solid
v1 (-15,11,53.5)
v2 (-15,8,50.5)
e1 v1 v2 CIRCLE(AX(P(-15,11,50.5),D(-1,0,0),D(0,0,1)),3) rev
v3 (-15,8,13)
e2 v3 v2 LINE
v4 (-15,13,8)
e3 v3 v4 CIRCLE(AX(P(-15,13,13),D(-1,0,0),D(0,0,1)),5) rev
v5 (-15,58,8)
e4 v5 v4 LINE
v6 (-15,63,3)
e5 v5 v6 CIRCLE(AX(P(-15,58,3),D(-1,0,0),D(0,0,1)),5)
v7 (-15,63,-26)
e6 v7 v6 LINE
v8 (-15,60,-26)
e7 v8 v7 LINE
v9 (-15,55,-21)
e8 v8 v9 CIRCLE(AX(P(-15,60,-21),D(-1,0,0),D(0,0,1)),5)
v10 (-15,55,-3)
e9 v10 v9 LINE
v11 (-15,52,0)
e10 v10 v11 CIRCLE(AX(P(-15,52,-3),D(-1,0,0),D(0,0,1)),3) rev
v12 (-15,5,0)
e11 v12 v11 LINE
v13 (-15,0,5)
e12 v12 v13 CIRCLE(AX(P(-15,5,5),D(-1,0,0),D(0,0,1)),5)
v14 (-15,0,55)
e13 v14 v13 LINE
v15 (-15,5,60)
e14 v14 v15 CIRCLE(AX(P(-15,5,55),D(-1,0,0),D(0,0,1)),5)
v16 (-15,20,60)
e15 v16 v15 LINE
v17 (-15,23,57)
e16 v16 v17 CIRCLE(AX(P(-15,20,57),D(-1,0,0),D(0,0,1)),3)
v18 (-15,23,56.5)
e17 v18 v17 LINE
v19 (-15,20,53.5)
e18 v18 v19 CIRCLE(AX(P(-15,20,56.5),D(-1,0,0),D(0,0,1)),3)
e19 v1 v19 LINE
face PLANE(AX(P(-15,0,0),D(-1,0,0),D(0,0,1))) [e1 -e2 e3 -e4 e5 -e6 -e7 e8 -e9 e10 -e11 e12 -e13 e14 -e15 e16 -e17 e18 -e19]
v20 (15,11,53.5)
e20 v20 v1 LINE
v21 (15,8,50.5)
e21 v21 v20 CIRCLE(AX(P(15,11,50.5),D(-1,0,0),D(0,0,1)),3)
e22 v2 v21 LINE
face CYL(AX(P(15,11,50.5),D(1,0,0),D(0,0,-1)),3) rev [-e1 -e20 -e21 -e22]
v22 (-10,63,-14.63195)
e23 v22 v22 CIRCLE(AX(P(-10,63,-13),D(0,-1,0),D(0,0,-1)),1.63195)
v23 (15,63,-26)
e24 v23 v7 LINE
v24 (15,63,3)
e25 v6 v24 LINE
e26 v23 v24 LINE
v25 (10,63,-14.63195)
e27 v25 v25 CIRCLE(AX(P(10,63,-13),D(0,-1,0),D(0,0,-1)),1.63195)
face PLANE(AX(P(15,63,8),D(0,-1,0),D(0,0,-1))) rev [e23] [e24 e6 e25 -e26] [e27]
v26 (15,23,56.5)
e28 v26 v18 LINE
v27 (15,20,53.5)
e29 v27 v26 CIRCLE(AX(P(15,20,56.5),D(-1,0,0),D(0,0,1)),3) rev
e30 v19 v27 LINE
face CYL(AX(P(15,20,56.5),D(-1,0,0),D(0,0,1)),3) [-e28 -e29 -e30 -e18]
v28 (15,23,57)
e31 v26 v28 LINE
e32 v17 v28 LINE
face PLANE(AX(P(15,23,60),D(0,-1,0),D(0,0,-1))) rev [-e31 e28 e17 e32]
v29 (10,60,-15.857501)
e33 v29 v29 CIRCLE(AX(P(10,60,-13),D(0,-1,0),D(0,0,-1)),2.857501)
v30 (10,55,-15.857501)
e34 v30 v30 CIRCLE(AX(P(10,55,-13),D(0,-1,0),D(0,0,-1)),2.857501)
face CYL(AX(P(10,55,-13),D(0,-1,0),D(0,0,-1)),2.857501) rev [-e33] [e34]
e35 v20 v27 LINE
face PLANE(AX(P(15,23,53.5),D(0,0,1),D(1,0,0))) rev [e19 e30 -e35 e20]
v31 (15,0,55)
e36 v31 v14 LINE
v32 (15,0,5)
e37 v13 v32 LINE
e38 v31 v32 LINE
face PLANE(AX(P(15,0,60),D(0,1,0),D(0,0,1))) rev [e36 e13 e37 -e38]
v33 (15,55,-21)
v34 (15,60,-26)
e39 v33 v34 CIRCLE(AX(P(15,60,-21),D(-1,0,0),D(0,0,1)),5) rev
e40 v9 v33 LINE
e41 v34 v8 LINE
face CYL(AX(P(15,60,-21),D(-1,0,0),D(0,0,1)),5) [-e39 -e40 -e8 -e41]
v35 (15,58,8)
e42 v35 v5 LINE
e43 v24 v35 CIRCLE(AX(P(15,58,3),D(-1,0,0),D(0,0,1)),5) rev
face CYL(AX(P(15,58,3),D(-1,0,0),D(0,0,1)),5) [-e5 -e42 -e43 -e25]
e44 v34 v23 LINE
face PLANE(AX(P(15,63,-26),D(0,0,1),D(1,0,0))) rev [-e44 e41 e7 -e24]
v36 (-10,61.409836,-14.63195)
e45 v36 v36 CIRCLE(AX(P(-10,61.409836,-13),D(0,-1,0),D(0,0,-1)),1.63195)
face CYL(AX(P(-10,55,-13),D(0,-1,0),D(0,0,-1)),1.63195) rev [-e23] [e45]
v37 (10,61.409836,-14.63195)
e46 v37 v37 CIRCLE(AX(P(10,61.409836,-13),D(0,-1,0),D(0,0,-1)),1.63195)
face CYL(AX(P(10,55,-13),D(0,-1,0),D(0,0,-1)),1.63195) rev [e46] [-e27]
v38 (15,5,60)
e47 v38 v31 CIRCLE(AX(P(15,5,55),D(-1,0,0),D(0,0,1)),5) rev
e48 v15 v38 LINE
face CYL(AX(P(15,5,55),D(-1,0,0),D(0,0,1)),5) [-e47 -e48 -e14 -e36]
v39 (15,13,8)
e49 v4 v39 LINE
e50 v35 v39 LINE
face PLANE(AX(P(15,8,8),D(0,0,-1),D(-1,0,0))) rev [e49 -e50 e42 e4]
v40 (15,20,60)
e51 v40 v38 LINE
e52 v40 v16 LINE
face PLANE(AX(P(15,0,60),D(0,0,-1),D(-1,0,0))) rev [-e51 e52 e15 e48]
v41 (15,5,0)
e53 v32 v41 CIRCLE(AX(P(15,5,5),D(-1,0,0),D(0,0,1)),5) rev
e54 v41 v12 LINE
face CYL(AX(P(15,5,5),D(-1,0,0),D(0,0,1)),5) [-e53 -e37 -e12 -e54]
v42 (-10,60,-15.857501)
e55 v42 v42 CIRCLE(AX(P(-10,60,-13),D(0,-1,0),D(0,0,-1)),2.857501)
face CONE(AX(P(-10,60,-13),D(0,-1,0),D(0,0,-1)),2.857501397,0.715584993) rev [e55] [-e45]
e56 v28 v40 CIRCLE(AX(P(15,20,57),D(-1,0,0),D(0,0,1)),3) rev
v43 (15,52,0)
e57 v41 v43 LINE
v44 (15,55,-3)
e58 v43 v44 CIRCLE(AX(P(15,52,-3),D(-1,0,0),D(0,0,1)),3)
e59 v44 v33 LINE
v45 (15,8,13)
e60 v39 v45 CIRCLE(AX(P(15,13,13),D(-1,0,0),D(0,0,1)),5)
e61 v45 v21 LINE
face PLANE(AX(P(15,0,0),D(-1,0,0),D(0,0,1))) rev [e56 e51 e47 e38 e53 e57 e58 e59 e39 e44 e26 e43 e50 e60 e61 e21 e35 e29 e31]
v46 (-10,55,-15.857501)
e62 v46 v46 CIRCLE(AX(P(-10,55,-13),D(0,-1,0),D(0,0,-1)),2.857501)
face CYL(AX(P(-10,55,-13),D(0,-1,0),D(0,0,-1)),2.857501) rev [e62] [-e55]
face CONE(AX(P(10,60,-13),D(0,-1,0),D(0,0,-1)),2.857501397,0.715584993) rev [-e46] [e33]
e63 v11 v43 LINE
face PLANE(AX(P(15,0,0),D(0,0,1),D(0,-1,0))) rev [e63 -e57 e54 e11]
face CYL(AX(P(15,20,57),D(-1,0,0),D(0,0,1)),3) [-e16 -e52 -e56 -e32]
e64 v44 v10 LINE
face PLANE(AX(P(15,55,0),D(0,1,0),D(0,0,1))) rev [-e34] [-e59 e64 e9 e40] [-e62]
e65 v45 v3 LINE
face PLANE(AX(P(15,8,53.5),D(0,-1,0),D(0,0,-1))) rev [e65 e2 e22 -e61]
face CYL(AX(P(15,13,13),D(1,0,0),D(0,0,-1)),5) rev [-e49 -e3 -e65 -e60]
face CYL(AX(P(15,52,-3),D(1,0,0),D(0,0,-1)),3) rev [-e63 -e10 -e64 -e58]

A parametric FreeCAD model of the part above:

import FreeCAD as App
import Part
import Sketcher
Q = App.Units.Quantity


def edges_at(feature, points):
    """Names of the edges that pass closest to the given points."""
    edges = feature.Shape.Edges
    near = lambda p: min(range(len(edges)), key=lambda i: edges[i].distToShape(Part.Vertex(*p))[0])
    return sorted({f"Edge{near(p) + 1}" for p in points})

doc = App.newDocument("Part")
body = doc.addObject("PartDesign::Body", "Body")

sketch1 = body.newObject("Sketcher::SketchObject", "Sketch")
sketch1.AttachmentSupport = (doc.getObject("YZ_Plane"), [""])
sketch1.MapMode = "FlatFace"
sketch1.addGeometry([
    Part.LineSegment(App.Vector(0, 60, 0), App.Vector(0, 0, 0)),
    Part.LineSegment(App.Vector(0, 0, 0), App.Vector(55, 0, 0)),
    Part.LineSegment(App.Vector(55, 0, 0), App.Vector(55, -26, 0)),
    Part.LineSegment(App.Vector(55, -26, 0), App.Vector(63, -26, 0)),
    Part.LineSegment(App.Vector(63, -26, 0), App.Vector(63, 8, 0)),
    Part.LineSegment(App.Vector(63, 8, 0), App.Vector(8, 8, 0)),
    Part.LineSegment(App.Vector(8, 8, 0), App.Vector(8, 54, 0)),
    Part.LineSegment(App.Vector(8, 54, 0), App.Vector(23, 54, 0)),
    Part.LineSegment(App.Vector(23, 54, 0), App.Vector(23, 60, 0)),
    Part.LineSegment(App.Vector(23, 60, 0), App.Vector(0, 60, 0)),
], False)
sketch1.addConstraint([
    Sketcher.Constraint("Coincident", 0, 2, 1, 1),
    Sketcher.Constraint("Coincident", 1, 2, 2, 1),
    Sketcher.Constraint("Coincident", 2, 2, 3, 1),
    Sketcher.Constraint("Coincident", 3, 2, 4, 1),
    Sketcher.Constraint("Coincident", 4, 2, 5, 1),
    Sketcher.Constraint("Coincident", 5, 2, 6, 1),
    Sketcher.Constraint("Coincident", 6, 2, 7, 1),
    Sketcher.Constraint("Coincident", 7, 2, 8, 1),
    Sketcher.Constraint("Coincident", 8, 2, 9, 1),
    Sketcher.Constraint("Coincident", 9, 2, 0, 1),
    Sketcher.Constraint("Vertical", 0),
    Sketcher.Constraint("Horizontal", 1),
    Sketcher.Constraint("Vertical", 2),
    Sketcher.Constraint("Horizontal", 3),
    Sketcher.Constraint("Vertical", 4),
    Sketcher.Constraint("Horizontal", 5),
    Sketcher.Constraint("Vertical", 6),
    Sketcher.Constraint("Horizontal", 7),
    Sketcher.Constraint("Vertical", 8),
    Sketcher.Constraint("Horizontal", 9),
    Sketcher.Constraint("Coincident", 0, 2, -1, 1),
    Sketcher.Constraint("Equal", 1, 5),
    Sketcher.Constraint("DistanceX", 1, 1, 1, 2, Q("55 mm")),
    Sketcher.Constraint("DistanceX", 3, 1, 3, 2, Q("8 mm")),
    Sketcher.Constraint("DistanceX", 7, 1, 7, 2, Q("15 mm")),
    Sketcher.Constraint("DistanceY", 0, 2, 0, 1, Q("60 mm")),
    Sketcher.Constraint("DistanceY", 2, 2, 2, 1, Q("26 mm")),
    Sketcher.Constraint("DistanceY", 4, 1, 4, 2, Q("34 mm")),
    Sketcher.Constraint("DistanceY", 6, 1, 6, 2, Q("45.5 mm")),
])
pad1 = body.newObject("PartDesign::Pad", "Pad")
pad1.Profile = sketch1
pad1.Length = 30
pad1.Midplane = True
doc.recompute()

fillet = body.newObject("PartDesign::Fillet", "Fillet")
fillet.Base = (pad1, edges_at(pad1, [
    (0, 8, 8),
    (0, 63, 8),
    (0, 55, -26),
    (0, 0, 0),
    (0, 0, 60),
]))
fillet.Radius = 5
doc.recompute()

fillet2 = body.newObject("PartDesign::Fillet", "Fillet001")
fillet2.Base = (fillet, edges_at(fillet, [
    (0, 23, 60),
    (0, 23, 53.5),
    (0, 8, 53.5),
    (0, 55, 0),
]))
fillet2.Radius = 3

sketch2 = body.newObject("Sketcher::SketchObject", "Sketch001")
sketch2.AttachmentSupport = (doc.getObject("YZ_Plane"), [""])
sketch2.MapMode = "FlatFace"
sketch2.AttachmentOffset = App.Placement(App.Vector(0, 0, -10), App.Rotation())
sketch2.addGeometry([
    Part.LineSegment(App.Vector(63, -13, 0), App.Vector(55, -13, 0)),
    Part.LineSegment(App.Vector(55, -13, 0), App.Vector(55, -15.9, 0)),
    Part.LineSegment(App.Vector(55, -15.9, 0), App.Vector(60, -15.9, 0)),
    Part.LineSegment(App.Vector(60, -15.9, 0), App.Vector(61.4, -14.6, 0)),
    Part.LineSegment(App.Vector(61.4, -14.6, 0), App.Vector(63, -14.6, 0)),
    Part.LineSegment(App.Vector(63, -14.6, 0), App.Vector(63, -13, 0)),
], False)
sketch2.addGeometry(Part.LineSegment(App.Vector(55, -13, 0), App.Vector(63, -13, 0)), True)
sketch2.addConstraint([
    Sketcher.Constraint("Coincident", 0, 2, 1, 1),
    Sketcher.Constraint("Coincident", 1, 2, 2, 1),
    Sketcher.Constraint("Coincident", 2, 2, 3, 1),
    Sketcher.Constraint("Coincident", 3, 2, 4, 1),
    Sketcher.Constraint("Coincident", 4, 2, 5, 1),
    Sketcher.Constraint("Coincident", 5, 2, 0, 1),
    Sketcher.Constraint("Horizontal", 0),
    Sketcher.Constraint("Vertical", 1),
    Sketcher.Constraint("Horizontal", 2),
    Sketcher.Constraint("Horizontal", 4),
    Sketcher.Constraint("Vertical", 5),
    Sketcher.Constraint("Horizontal", 6),
    Sketcher.Constraint("Coincident", 6, 1, 0, 2),
    Sketcher.Constraint("Vertical", 4, 2, 6, 2),
    Sketcher.Constraint("DistanceX", 0, 2, 0, 1, Q("8 mm")),
    Sketcher.Constraint("DistanceX", 2, 1, 2, 2, Q("5 mm")),
    Sketcher.Constraint("Angle", 3, Q("41 deg")),
    Sketcher.Constraint("DistanceX", -1, 1, 0, 2, Q("55 mm")),
    Sketcher.Constraint("DistanceY", 0, 2, -1, 1, Q("13 mm")),
    Sketcher.Constraint("DistanceY", 1, 2, 1, 1, Q("2.857501 mm")),
    Sketcher.Constraint("DistanceY", 5, 1, 5, 2, Q("1.63195 mm")),
])
groove = body.newObject("PartDesign::Groove", "Groove")
groove.Profile = sketch2
groove.ReferenceAxis = (sketch2, ["Axis0"])
groove.Angle = 360
doc.recompute()

linearpattern = body.newObject("PartDesign::LinearPattern", "LinearPattern")
linearpattern.Originals = [groove]
linearpattern.Direction = (doc.getObject("X_Axis"), [""])
linearpattern.Mode = "offset"
linearpattern.Offset = 20
linearpattern.Occurrences = 2
body.Tip = linearpattern

doc.recompute()
